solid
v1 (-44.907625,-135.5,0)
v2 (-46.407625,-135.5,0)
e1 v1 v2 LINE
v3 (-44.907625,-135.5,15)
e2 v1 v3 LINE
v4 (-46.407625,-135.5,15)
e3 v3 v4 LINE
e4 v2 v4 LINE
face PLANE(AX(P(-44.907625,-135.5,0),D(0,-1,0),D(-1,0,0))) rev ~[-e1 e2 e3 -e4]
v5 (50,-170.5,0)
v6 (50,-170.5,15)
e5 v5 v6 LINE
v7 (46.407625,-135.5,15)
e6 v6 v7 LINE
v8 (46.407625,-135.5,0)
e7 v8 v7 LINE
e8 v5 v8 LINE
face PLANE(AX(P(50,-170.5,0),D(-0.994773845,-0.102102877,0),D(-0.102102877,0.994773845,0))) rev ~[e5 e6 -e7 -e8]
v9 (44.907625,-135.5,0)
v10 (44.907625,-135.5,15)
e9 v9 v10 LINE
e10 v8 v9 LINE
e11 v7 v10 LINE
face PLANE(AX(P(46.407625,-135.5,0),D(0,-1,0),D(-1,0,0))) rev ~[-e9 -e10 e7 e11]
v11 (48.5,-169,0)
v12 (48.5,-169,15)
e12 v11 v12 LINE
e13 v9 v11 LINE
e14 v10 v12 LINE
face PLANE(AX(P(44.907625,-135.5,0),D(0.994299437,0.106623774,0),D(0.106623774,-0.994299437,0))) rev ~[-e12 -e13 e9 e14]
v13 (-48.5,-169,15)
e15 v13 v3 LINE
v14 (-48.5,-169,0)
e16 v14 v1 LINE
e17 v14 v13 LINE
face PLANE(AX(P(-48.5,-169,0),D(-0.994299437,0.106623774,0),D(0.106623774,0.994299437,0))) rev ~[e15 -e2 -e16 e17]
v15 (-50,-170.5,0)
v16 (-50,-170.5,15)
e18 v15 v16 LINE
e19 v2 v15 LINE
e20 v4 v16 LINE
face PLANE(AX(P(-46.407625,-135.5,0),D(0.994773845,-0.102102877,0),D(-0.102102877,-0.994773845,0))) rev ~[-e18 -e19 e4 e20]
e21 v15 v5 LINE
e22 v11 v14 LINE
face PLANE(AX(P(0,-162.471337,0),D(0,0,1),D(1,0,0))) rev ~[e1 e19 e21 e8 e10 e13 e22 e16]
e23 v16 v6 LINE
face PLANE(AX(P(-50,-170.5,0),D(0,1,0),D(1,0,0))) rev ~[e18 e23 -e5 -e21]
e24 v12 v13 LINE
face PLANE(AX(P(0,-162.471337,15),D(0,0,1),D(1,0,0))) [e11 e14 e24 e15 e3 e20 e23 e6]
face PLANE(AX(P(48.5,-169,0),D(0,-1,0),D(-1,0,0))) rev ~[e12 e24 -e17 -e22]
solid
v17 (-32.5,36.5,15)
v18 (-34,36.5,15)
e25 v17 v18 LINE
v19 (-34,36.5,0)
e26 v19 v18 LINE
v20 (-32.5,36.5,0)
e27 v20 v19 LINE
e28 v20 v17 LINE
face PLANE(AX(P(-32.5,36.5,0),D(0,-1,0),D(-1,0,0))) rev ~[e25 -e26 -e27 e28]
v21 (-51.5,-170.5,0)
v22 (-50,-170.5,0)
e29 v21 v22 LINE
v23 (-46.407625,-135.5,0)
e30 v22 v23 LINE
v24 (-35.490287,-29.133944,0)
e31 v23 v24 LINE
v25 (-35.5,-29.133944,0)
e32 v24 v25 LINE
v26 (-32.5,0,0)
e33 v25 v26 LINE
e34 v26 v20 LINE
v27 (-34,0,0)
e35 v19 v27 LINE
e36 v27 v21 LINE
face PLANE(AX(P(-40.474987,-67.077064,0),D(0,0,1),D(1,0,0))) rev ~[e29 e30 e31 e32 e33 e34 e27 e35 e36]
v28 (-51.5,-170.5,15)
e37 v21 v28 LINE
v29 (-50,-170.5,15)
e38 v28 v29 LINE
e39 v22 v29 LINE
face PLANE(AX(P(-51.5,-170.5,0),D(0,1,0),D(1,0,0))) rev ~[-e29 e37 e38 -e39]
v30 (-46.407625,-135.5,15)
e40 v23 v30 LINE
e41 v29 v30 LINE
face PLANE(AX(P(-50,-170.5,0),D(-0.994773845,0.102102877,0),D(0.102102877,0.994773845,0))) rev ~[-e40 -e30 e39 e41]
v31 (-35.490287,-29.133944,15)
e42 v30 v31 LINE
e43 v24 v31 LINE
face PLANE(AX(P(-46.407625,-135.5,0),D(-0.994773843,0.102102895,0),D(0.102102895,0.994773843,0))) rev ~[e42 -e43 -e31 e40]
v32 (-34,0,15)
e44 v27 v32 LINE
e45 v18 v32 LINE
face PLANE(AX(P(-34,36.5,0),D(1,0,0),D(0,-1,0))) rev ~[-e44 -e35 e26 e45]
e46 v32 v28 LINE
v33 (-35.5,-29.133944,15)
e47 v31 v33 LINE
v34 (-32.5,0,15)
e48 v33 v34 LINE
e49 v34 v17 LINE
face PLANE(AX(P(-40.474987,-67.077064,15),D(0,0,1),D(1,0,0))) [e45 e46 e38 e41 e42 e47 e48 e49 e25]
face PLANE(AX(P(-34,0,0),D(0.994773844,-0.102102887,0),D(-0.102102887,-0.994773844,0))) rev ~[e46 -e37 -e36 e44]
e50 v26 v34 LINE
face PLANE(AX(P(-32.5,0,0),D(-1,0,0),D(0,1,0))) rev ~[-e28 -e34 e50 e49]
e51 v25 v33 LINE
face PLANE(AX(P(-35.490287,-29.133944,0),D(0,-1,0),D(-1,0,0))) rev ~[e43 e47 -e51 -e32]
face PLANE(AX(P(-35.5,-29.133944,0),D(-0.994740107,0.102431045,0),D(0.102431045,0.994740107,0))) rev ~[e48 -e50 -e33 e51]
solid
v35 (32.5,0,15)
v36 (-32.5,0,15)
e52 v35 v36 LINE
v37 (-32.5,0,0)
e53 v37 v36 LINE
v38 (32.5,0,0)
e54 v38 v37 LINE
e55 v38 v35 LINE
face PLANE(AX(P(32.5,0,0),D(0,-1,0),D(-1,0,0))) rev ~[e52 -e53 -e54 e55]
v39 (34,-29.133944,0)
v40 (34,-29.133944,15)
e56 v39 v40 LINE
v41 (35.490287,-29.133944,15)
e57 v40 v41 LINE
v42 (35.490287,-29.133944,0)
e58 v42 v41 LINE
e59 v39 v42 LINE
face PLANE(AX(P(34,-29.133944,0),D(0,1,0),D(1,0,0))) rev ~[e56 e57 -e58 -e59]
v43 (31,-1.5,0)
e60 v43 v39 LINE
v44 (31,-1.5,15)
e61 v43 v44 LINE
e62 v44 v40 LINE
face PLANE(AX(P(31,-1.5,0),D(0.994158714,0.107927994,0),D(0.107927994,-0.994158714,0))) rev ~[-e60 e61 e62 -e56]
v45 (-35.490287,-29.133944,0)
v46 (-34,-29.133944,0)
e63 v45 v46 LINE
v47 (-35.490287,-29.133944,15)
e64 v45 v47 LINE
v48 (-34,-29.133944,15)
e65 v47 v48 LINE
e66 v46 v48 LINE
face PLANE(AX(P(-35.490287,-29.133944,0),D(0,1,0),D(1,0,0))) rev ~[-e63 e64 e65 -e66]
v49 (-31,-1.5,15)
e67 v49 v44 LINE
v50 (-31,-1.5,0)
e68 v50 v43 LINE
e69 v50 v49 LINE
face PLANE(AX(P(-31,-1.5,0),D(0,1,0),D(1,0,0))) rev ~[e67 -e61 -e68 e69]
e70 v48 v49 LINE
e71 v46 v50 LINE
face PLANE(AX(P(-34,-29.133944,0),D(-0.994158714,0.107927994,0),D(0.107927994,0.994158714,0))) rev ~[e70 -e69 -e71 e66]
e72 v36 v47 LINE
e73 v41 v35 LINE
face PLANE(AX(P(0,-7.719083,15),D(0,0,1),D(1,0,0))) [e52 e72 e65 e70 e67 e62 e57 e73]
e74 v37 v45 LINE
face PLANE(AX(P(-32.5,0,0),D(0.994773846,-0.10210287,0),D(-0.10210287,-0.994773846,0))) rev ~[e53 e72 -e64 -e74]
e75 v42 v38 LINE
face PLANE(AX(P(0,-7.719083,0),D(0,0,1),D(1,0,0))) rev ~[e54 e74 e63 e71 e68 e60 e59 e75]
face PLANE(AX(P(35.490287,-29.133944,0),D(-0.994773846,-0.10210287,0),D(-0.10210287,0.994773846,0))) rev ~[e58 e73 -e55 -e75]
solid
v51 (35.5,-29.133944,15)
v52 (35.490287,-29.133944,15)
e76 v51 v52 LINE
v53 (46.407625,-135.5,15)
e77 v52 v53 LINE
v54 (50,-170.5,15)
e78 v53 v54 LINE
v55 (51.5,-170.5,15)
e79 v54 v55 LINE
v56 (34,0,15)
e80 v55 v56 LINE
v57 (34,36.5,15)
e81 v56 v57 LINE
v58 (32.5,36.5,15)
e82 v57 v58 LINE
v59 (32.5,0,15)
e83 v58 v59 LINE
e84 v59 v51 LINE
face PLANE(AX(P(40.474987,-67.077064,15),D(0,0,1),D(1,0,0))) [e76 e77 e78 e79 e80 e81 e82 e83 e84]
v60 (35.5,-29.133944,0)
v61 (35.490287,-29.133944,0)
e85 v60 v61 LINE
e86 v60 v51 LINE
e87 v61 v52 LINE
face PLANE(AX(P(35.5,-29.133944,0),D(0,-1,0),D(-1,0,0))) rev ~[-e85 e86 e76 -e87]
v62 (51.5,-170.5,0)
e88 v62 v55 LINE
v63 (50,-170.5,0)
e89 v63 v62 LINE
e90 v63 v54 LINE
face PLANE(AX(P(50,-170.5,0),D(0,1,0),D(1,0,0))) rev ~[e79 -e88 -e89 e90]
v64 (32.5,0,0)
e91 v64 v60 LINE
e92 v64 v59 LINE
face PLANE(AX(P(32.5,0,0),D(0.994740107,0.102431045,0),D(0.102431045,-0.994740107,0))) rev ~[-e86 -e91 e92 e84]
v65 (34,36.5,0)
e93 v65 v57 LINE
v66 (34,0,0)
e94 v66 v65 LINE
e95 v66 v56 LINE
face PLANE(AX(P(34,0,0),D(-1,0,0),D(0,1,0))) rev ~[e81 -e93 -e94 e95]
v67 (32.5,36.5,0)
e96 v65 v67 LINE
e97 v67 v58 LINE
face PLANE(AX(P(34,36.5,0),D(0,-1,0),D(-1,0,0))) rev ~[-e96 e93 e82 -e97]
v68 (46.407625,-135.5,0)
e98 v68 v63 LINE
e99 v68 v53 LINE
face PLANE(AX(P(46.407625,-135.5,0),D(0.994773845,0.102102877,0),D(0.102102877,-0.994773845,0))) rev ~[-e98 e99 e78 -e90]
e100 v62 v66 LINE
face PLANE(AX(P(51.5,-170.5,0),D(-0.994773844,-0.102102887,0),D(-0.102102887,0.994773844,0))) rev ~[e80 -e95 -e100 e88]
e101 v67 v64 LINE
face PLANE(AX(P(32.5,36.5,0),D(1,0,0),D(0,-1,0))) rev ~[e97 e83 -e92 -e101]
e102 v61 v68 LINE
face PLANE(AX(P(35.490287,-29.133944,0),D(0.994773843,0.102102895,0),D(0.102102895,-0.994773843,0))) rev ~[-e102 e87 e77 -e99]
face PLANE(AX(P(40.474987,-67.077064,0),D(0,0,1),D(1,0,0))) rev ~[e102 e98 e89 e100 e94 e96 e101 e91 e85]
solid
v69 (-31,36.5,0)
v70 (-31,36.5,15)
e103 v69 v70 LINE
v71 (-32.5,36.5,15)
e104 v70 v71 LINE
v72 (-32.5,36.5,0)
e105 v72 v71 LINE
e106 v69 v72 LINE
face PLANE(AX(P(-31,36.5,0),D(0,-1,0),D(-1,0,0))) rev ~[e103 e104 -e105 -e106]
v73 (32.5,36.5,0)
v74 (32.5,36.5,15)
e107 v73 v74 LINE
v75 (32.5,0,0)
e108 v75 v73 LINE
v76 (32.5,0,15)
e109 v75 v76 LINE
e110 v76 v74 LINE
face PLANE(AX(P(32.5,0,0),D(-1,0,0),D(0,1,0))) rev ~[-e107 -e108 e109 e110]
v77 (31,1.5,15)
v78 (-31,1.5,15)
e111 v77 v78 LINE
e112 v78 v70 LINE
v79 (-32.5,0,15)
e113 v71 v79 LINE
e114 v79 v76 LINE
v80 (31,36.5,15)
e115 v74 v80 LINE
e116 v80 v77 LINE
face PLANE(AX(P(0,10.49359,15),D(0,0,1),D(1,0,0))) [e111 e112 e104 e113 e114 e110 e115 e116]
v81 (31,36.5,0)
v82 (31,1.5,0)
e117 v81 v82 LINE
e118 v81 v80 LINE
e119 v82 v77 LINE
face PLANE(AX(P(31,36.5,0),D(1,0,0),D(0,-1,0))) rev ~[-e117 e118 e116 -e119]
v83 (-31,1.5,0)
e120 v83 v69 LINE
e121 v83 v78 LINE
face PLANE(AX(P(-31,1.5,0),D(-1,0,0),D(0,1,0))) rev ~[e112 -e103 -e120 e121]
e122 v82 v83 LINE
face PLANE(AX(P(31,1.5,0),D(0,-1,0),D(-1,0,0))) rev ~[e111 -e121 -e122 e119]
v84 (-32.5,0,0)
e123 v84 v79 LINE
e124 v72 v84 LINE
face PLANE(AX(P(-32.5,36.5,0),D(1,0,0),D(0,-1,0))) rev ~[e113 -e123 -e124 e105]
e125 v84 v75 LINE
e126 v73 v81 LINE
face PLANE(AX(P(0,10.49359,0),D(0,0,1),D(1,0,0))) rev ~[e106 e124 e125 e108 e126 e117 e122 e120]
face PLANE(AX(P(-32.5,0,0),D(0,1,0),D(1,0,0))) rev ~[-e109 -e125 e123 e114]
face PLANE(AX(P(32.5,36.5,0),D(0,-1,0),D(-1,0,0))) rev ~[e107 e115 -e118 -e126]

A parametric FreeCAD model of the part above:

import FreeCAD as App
import Part
import Sketcher


def add_polygon(sketch, points):
    """Adds a closed chain of lines whose ends are joined by coincident constraints."""
    first, n = sketch.GeometryCount, len(points)
    for a, b in zip(points, points[1:] + points[:1]):
        sketch.addGeometry(Part.LineSegment(App.Vector(*a, 0), App.Vector(*b, 0)), False)
    for i in range(n):
        sketch.addConstraint(Sketcher.Constraint("Coincident", first + i, 2, first + (i + 1) % n, 1))

doc = App.newDocument("Part")
body = doc.addObject("PartDesign::Body", "Body")

sketch1 = doc.addObject("Sketcher::SketchObject", "Sketch")
body.addObject(sketch1)
sketch1.AttachmentSupport = (doc.XY_Plane, [""])
sketch1.MapMode = "FlatFace"
add_polygon(sketch1, [(-44.9, -135.5), (-46.4, -135.5), (-50, -170.5), (50, -170.5), (46.4, -135.5), (44.9, -135.5), (48.5, -169), (-48.5, -169)])
sketch1.addConstraint(Sketcher.Constraint("Horizontal", 0))
sketch1.addConstraint(Sketcher.Constraint("Horizontal", 2))
sketch1.addConstraint(Sketcher.Constraint("Horizontal", 4))
sketch1.addConstraint(Sketcher.Constraint("Horizontal", 6))
sketch1.addConstraint(Sketcher.Constraint("Symmetric", 0, 2, 3, 2, -2))
sketch1.addConstraint(Sketcher.Constraint("Equal", 0, 4))
sketch1.addConstraint(Sketcher.Constraint("Equal", 1, 3))
sketch1.addConstraint(Sketcher.Constraint("Equal", 5, 7))
sketch1.addConstraint(Sketcher.Constraint("DistanceX", 2, 1, 2, 2, 100.0))
sketch1.addConstraint(Sketcher.Constraint("DistanceX", 6, 2, 6, 1, 97.0))
sketch1.addConstraint(Sketcher.Constraint("DistanceX", 0, 2, 0, 1, 1.5))
sketch1.addConstraint(Sketcher.Constraint("DistanceY", 5, 2, -1, 1, 169.0))
sketch1.addConstraint(Sketcher.Constraint("DistanceY", 1, 2, 0, 2, 35.0))
sketch1.addConstraint(Sketcher.Constraint("DistanceY", 0, 2, -1, 1, 135.5))
sketch1.addConstraint(Sketcher.Constraint("DistanceX", 0, 2, 3, 2, 92.81525))
pad1 = doc.addObject("PartDesign::Pad", "Pad")
body.addObject(pad1)
pad1.Profile = sketch1
pad1.Length = 15
body2 = doc.addObject("PartDesign::Body", "Body001")

sketch2 = doc.addObject("Sketcher::SketchObject", "Sketch001")
body2.addObject(sketch2)
sketch2.AttachmentSupport = (doc.getObject("XY_Plane001"), [""])
sketch2.MapMode = "FlatFace"
add_polygon(sketch2, [(-32.5, 0), (32.5, 0), (32.5, 36.5), (31, 36.5), (31, 1.5), (-31, 1.5), (-31, 36.5), (-32.5, 36.5)])
sketch2.addConstraint(Sketcher.Constraint("Horizontal", 0))
sketch2.addConstraint(Sketcher.Constraint("Vertical", 1))
sketch2.addConstraint(Sketcher.Constraint("Horizontal", 2))
sketch2.addConstraint(Sketcher.Constraint("Vertical", 3))
sketch2.addConstraint(Sketcher.Constraint("Horizontal", 4))
sketch2.addConstraint(Sketcher.Constraint("Vertical", 5))
sketch2.addConstraint(Sketcher.Constraint("Horizontal", 6))
sketch2.addConstraint(Sketcher.Constraint("Vertical", 7))
sketch2.addConstraint(Sketcher.Constraint("Symmetric", 0, 2, 7, 2, -1, 1))
sketch2.addConstraint(Sketcher.Constraint("Symmetric", 2, 2, 5, 2, -2))
sketch2.addConstraint(Sketcher.Constraint("DistanceX", 0, 1, 0, 2, 65.0))
sketch2.addConstraint(Sketcher.Constraint("DistanceX", 4, 2, 4, 1, 62.0))
sketch2.addConstraint(Sketcher.Constraint("DistanceY", 3, 2, 3, 1, 35.0))
sketch2.addConstraint(Sketcher.Constraint("DistanceY", 1, 1, 1, 2, 36.5))
pad2 = doc.addObject("PartDesign::Pad", "Pad001")
body2.addObject(pad2)
pad2.Profile = sketch2
pad2.Length = 15
body3 = doc.addObject("PartDesign::Body", "Body002")

sketch3 = doc.addObject("Sketcher::SketchObject", "Sketch002")
body3.addObject(sketch3)
sketch3.AttachmentSupport = (doc.getObject("XY_Plane002"), [""])
sketch3.MapMode = "FlatFace"
add_polygon(sketch3, [(32.5, 0), (-32.5, 0), (-35.5, -29.1), (-34, -29.1), (-31, -1.5), (31, -1.5), (34, -29.1), (35.5, -29.1)])
sketch3.addConstraint(Sketcher.Constraint("Horizontal", 0))
sketch3.addConstraint(Sketcher.Constraint("Horizontal", 2))
sketch3.addConstraint(Sketcher.Constraint("Horizontal", 4))
sketch3.addConstraint(Sketcher.Constraint("Horizontal", 6))
sketch3.addConstraint(Sketcher.Constraint("Symmetric", 0, 2, 7, 2, -1, 1))
sketch3.addConstraint(Sketcher.Constraint("Symmetric", 2, 2, 5, 2, -2))
sketch3.addConstraint(Sketcher.Constraint("Equal", 2, 6))
sketch3.addConstraint(Sketcher.Constraint("Equal", 3, 5))
sketch3.addConstraint(Sketcher.Constraint("DistanceX", 0, 2, 0, 1, 65.0))
sketch3.addConstraint(Sketcher.Constraint("DistanceX", 4, 1, 4, 2, 62.0))
sketch3.addConstraint(Sketcher.Constraint("DistanceX", 2, 2, -1, 1, 34.0))
sketch3.addConstraint(Sketcher.Constraint("DistanceY", 3, 2, -1, 1, 1.5))
sketch3.addConstraint(Sketcher.Constraint("Distance", 3, 27.79631))
sketch3.addConstraint(Sketcher.Constraint("DistanceX", 2, 1, 2, 2, 1.490287))
pad3 = doc.addObject("PartDesign::Pad", "Pad002")
body3.addObject(pad3)
pad3.Profile = sketch3
pad3.Length = 15
body4 = doc.addObject("PartDesign::Body", "Body003")

sketch4 = doc.addObject("Sketcher::SketchObject", "Sketch003")
body4.addObject(sketch4)
sketch4.AttachmentSupport = (doc.getObject("XY_Plane003"), [""])
sketch4.MapMode = "FlatFace"
add_polygon(sketch4, [(-35.5, -29.134), (-32.5, 0), (-32.5, 36.5), (-34, 36.5), (-34, 0), (-51.5, -170.5), (-50, -170.5), (-46.408, -135.5), (-35.49, -29.134)])
sketch4.addConstraint(Sketcher.Constraint("Vertical", 1))
sketch4.addConstraint(Sketcher.Constraint("Horizontal", 2))
sketch4.addConstraint(Sketcher.Constraint("Vertical", 3))
sketch4.addConstraint(Sketcher.Constraint("Horizontal", 5))
sketch4.addConstraint(Sketcher.Constraint("Horizontal", 8))
sketch4.addConstraint(Sketcher.Constraint("PointOnObject", 0, 2, -1))
sketch4.addConstraint(Sketcher.Constraint("PointOnObject", 3, 2, -1))
sketch4.addConstraint(Sketcher.Constraint("Parallel", 4, 6))
sketch4.addConstraint(Sketcher.Constraint("Parallel", 6, 7))
sketch4.addConstraint(Sketcher.Constraint("Equal", 2, 5))
sketch4.addConstraint(Sketcher.Constraint("DistanceX", 2, 2, 2, 1, 1.5))
sketch4.addConstraint(Sketcher.Constraint("DistanceY", 1, 1, 1, 2, 36.5))
sketch4.addConstraint(Sketcher.Constraint("DistanceX", 2, 2, -1, 1, 34.0))
sketch4.addConstraint(Sketcher.Constraint("DistanceX", 5, 2, -1, 1, 50.0))
sketch4.addConstraint(Sketcher.Constraint("DistanceY", 4, 2, 2, 2, 207.0))
sketch4.addConstraint(Sketcher.Constraint("DistanceY", 5, 2, 6, 2, 35.0))
sketch4.addConstraint(Sketcher.Constraint("DistanceX", 8, 2, 0, 2, 3.0))
sketch4.addConstraint(Sketcher.Constraint("DistanceX", 8, 2, 8, 1, 0.009713))
pad4 = doc.addObject("PartDesign::Pad", "Pad003")
body4.addObject(pad4)
pad4.Profile = sketch4
pad4.Length = 15
body5 = doc.addObject("PartDesign::Body", "Body004")

sketch5 = doc.addObject("Sketcher::SketchObject", "Sketch004")
body5.addObject(sketch5)
sketch5.AttachmentSupport = (doc.getObject("XY_Plane004"), [""])
sketch5.MapMode = "FlatFace"
add_polygon(sketch5, [(32.5, 36.5), (32.5, 0), (35.5, -29.134), (35.49, -29.134), (46.408, -135.5), (50, -170.5), (51.5, -170.5), (34, 0), (34, 36.5)])
sketch5.addConstraint(Sketcher.Constraint("Vertical", 0))
sketch5.addConstraint(Sketcher.Constraint("Horizontal", 2))
sketch5.addConstraint(Sketcher.Constraint("Horizontal", 5))
sketch5.addConstraint(Sketcher.Constraint("Vertical", 7))
sketch5.addConstraint(Sketcher.Constraint("Horizontal", 8))
sketch5.addConstraint(Sketcher.Constraint("PointOnObject", 0, 2, -1))
sketch5.addConstraint(Sketcher.Constraint("PointOnObject", 6, 2, -1))
sketch5.addConstraint(Sketcher.Constraint("Parallel", 3, 4))
sketch5.addConstraint(Sketcher.Constraint("Parallel", 4, 6))
sketch5.addConstraint(Sketcher.Constraint("Equal", 5, 8))
sketch5.addConstraint(Sketcher.Constraint("DistanceX", 5, 1, 5, 2, 1.5))
sketch5.addConstraint(Sketcher.Constraint("DistanceY", 0, 2, 0, 1, 36.5))
sketch5.addConstraint(Sketcher.Constraint("DistanceX", -1, 1, 4, 2, 50.0))
sketch5.addConstraint(Sketcher.Constraint("DistanceX", -1, 1, 6, 2, 34.0))
sketch5.addConstraint(Sketcher.Constraint("DistanceX", 0, 2, 1, 2, 3.0))
sketch5.addConstraint(Sketcher.Constraint("DistanceY", 4, 2, 3, 2, 35.0))
sketch5.addConstraint(Sketcher.Constraint("DistanceY", 3, 2, 7, 2, 172.0))
sketch5.addConstraint(Sketcher.Constraint("DistanceX", 2, 2, 2, 1, 0.009713))
pad5 = doc.addObject("PartDesign::Pad", "Pad004")
body5.addObject(pad5)
pad5.Profile = sketch5
pad5.Length = 15

doc.recompute()
